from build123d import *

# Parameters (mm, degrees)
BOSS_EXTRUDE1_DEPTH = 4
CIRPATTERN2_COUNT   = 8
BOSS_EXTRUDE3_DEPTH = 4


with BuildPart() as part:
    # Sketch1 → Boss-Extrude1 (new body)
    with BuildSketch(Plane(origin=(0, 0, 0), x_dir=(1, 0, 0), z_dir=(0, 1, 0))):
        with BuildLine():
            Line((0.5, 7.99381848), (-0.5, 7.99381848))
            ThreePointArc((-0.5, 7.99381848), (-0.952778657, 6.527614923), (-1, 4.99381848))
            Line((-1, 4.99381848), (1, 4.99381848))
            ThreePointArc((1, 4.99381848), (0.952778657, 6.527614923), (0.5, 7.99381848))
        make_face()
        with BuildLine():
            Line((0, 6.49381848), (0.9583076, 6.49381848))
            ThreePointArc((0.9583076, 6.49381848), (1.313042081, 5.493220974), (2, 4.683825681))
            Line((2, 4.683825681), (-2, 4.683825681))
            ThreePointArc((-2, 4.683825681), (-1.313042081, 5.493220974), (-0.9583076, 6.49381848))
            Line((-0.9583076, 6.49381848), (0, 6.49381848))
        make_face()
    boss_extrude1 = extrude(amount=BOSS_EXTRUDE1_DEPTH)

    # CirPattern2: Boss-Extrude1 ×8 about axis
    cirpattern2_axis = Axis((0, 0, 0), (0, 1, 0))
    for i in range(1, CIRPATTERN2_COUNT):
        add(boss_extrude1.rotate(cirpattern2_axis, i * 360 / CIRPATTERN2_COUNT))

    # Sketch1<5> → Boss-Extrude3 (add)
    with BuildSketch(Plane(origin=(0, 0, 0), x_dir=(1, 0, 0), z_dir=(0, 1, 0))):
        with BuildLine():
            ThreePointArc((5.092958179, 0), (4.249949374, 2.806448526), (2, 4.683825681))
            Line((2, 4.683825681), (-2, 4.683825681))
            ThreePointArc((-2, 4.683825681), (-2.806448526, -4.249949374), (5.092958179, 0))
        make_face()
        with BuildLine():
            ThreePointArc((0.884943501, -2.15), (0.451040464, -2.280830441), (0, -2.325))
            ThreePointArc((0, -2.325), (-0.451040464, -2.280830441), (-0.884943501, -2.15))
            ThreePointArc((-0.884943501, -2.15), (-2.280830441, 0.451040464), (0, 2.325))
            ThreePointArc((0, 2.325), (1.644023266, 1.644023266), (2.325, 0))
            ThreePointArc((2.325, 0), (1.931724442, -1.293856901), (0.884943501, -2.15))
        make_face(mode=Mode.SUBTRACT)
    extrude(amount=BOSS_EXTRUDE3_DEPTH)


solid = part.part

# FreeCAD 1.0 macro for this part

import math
import FreeCAD as App
import Part
import Sketcher
from FreeCAD import Vector
Q = App.Units.Quantity

doc = App.newDocument("Part")
body = doc.addObject("PartDesign::Body", "Body")

# Sketch on XZ plane
sketch1 = body.newObject("Sketcher::SketchObject", "Sketch")
sketch1.AttachmentSupport = (doc.getObject("XZ_Plane"), [""])
sketch1.MapMode = "FlatFace"
sketch1.addGeometry([
    Part.ArcOfCircle(Part.Circle(Vector(-4.7, -5.6, 0), Vector(0, 0, 1), 5.7), math.radians(-24.86), math.radians(-9.12)),  # 0
    Part.LineSegment(Vector(0.5, -8, 0), Vector(-0.5, -8, 0)),  # 1
    Part.ArcOfCircle(Part.Circle(Vector(4.7, -5.6, 0), Vector(0, 0, 1), 5.7), math.radians(-170.88), math.radians(-155.14)),  # 2
    Part.ArcOfCircle(Part.Circle(Vector(-3.9, -7, 0), Vector(0, 0, 1), 2.9), math.radians(9), math.radians(51)),  # 3
    Part.LineSegment(Vector(-2, -4.7, 0), Vector(2, -4.7, 0)),  # 4
    Part.ArcOfCircle(Part.Circle(Vector(3.9, -7, 0), Vector(0, 0, 1), 2.9), math.radians(129), math.radians(171)),  # 5
], False)
sketch1.addConstraint([
    Sketcher.Constraint("Coincident", 0, 1, 1, 1),
    Sketcher.Constraint("Coincident", 1, 2, 2, 2),
    Sketcher.Constraint("Tangent", 2, 1, 3, 1),
    Sketcher.Constraint("Coincident", 3, 2, 4, 1),
    Sketcher.Constraint("Coincident", 4, 2, 5, 1),
    Sketcher.Constraint("Tangent", 5, 2, 0, 2),
    Sketcher.Constraint("Horizontal", 1),
    Sketcher.Constraint("Horizontal", 4),
    Sketcher.Constraint("Equal", 0, 2),
    Sketcher.Constraint("Equal", 3, 5),
    Sketcher.Constraint("Symmetric", 0, 3, 2, 3, -2),
    Sketcher.Constraint("Horizontal", 3, 3, 5, 3),
    Sketcher.Constraint("DistanceX", 1, 2, 1, 1, Q("1 mm")),
    Sketcher.Constraint("DistanceX", 4, 1, 4, 2, Q("4 mm")),
    Sketcher.Constraint("DistanceY", 1, 2, 2, 1, Q("1.5 mm")),
    Sketcher.Constraint("Radius", 3, Q("2.940221 mm")),
    Sketcher.Constraint("Radius", 0, Q("5.727236 mm")),
    Sketcher.Constraint("DistanceX", 0, 3, -1, 1, Q("4.696532 mm")),
    Sketcher.Constraint("DistanceY", 0, 1, -1, 1, Q("7.993818 mm")),
])
pad1 = body.newObject("PartDesign::Pad", "Pad")
pad1.Profile = sketch1
pad1.Length = 4
pad1.Reversed = True
doc.recompute()

polarpattern = body.newObject("PartDesign::PolarPattern", "PolarPattern")
polarpattern.Originals = [pad1]
polarpattern.Axis = (doc.getObject("Y_Axis"), [""])
polarpattern.Angle = 360
polarpattern.Occurrences = 8
body.Tip = polarpattern

# Sketch on XZ plane
sketch2 = body.newObject("Sketcher::SketchObject", "Sketch001")
sketch2.AttachmentSupport = (doc.getObject("XZ_Plane"), [""])
sketch2.MapMode = "FlatFace"
sketch2.addGeometry([
    Part.ArcOfCircle(Part.Circle(Vector(0, 0, 0), Vector(0, 0, 1), 5.1), math.radians(-67), math.radians(0)),  # 0
    Part.LineSegment(Vector(2, -4.7, 0), Vector(-2, -4.7, 0)),  # 1
    Part.ArcOfCircle(Part.Circle(Vector(0, 0, 0), Vector(0, 0, 1), 5.1), math.radians(0), math.radians(247)),  # 2
    Part.ArcOfCircle(Part.Circle(Vector(0, 0, 0), Vector(0, 0, 1), 2.3), math.radians(0), math.radians(68)),  # 3
    Part.ArcOfCircle(Part.Circle(Vector(0, 0, 0), Vector(0, 0, 1), 2.3), math.radians(68), math.radians(90)),  # 4
    Part.ArcOfCircle(Part.Circle(Vector(0, 0, 0), Vector(0, 0, 1), 2.3), math.radians(90), math.radians(112)),  # 5
    Part.ArcOfCircle(Part.Circle(Vector(0, 0, 0), Vector(0, 0, 1), 2.3), math.radians(112), math.radians(270)),  # 6
    Part.ArcOfCircle(Part.Circle(Vector(0, 0, 0), Vector(0, 0, 1), 2.3), math.radians(-90), math.radians(0)),  # 7
], False)
sketch2.addConstraint([
    Sketcher.Constraint("Coincident", 0, 1, 1, 1),
    Sketcher.Constraint("Coincident", 1, 2, 2, 2),
    Sketcher.Constraint("Tangent", 2, 1, 0, 2),
    Sketcher.Constraint("Tangent", 3, 2, 4, 1),
    Sketcher.Constraint("Tangent", 4, 2, 5, 1),
    Sketcher.Constraint("Tangent", 5, 2, 6, 1),
    Sketcher.Constraint("Tangent", 6, 2, 7, 1),
    Sketcher.Constraint("Tangent", 7, 2, 3, 1),
    Sketcher.Constraint("Horizontal", 1),
    Sketcher.Constraint("Coincident", 0, 3, -1, 1),
    Sketcher.Constraint("Coincident", 3, 3, -1, 1),
    Sketcher.Constraint("Coincident", 5, 3, -1, 1),
    Sketcher.Constraint("Equal", 0, 2),
    Sketcher.Constraint("PointOnObject", 2, 1, -1),
    Sketcher.Constraint("PointOnObject", 4, 2, -2),
    Sketcher.Constraint("PointOnObject", 6, 2, -2),
    Sketcher.Constraint("PointOnObject", 7, 2, -1),
    Sketcher.Constraint("Horizontal", 3, 2, 5, 2),
    Sketcher.Constraint("DistanceX", 1, 2, 1, 1, Q("4 mm")),
    Sketcher.Constraint("Radius", 3, Q("2.325 mm")),
    Sketcher.Constraint("DistanceY", -1, 1, 3, 2, Q("2.15 mm")),
    Sketcher.Constraint("Radius", 0, Q("5.092958 mm")),
])
pad2 = body.newObject("PartDesign::Pad", "Pad001")
pad2.Profile = sketch2
pad2.Length = 4
pad2.Reversed = True

doc.recompute()
